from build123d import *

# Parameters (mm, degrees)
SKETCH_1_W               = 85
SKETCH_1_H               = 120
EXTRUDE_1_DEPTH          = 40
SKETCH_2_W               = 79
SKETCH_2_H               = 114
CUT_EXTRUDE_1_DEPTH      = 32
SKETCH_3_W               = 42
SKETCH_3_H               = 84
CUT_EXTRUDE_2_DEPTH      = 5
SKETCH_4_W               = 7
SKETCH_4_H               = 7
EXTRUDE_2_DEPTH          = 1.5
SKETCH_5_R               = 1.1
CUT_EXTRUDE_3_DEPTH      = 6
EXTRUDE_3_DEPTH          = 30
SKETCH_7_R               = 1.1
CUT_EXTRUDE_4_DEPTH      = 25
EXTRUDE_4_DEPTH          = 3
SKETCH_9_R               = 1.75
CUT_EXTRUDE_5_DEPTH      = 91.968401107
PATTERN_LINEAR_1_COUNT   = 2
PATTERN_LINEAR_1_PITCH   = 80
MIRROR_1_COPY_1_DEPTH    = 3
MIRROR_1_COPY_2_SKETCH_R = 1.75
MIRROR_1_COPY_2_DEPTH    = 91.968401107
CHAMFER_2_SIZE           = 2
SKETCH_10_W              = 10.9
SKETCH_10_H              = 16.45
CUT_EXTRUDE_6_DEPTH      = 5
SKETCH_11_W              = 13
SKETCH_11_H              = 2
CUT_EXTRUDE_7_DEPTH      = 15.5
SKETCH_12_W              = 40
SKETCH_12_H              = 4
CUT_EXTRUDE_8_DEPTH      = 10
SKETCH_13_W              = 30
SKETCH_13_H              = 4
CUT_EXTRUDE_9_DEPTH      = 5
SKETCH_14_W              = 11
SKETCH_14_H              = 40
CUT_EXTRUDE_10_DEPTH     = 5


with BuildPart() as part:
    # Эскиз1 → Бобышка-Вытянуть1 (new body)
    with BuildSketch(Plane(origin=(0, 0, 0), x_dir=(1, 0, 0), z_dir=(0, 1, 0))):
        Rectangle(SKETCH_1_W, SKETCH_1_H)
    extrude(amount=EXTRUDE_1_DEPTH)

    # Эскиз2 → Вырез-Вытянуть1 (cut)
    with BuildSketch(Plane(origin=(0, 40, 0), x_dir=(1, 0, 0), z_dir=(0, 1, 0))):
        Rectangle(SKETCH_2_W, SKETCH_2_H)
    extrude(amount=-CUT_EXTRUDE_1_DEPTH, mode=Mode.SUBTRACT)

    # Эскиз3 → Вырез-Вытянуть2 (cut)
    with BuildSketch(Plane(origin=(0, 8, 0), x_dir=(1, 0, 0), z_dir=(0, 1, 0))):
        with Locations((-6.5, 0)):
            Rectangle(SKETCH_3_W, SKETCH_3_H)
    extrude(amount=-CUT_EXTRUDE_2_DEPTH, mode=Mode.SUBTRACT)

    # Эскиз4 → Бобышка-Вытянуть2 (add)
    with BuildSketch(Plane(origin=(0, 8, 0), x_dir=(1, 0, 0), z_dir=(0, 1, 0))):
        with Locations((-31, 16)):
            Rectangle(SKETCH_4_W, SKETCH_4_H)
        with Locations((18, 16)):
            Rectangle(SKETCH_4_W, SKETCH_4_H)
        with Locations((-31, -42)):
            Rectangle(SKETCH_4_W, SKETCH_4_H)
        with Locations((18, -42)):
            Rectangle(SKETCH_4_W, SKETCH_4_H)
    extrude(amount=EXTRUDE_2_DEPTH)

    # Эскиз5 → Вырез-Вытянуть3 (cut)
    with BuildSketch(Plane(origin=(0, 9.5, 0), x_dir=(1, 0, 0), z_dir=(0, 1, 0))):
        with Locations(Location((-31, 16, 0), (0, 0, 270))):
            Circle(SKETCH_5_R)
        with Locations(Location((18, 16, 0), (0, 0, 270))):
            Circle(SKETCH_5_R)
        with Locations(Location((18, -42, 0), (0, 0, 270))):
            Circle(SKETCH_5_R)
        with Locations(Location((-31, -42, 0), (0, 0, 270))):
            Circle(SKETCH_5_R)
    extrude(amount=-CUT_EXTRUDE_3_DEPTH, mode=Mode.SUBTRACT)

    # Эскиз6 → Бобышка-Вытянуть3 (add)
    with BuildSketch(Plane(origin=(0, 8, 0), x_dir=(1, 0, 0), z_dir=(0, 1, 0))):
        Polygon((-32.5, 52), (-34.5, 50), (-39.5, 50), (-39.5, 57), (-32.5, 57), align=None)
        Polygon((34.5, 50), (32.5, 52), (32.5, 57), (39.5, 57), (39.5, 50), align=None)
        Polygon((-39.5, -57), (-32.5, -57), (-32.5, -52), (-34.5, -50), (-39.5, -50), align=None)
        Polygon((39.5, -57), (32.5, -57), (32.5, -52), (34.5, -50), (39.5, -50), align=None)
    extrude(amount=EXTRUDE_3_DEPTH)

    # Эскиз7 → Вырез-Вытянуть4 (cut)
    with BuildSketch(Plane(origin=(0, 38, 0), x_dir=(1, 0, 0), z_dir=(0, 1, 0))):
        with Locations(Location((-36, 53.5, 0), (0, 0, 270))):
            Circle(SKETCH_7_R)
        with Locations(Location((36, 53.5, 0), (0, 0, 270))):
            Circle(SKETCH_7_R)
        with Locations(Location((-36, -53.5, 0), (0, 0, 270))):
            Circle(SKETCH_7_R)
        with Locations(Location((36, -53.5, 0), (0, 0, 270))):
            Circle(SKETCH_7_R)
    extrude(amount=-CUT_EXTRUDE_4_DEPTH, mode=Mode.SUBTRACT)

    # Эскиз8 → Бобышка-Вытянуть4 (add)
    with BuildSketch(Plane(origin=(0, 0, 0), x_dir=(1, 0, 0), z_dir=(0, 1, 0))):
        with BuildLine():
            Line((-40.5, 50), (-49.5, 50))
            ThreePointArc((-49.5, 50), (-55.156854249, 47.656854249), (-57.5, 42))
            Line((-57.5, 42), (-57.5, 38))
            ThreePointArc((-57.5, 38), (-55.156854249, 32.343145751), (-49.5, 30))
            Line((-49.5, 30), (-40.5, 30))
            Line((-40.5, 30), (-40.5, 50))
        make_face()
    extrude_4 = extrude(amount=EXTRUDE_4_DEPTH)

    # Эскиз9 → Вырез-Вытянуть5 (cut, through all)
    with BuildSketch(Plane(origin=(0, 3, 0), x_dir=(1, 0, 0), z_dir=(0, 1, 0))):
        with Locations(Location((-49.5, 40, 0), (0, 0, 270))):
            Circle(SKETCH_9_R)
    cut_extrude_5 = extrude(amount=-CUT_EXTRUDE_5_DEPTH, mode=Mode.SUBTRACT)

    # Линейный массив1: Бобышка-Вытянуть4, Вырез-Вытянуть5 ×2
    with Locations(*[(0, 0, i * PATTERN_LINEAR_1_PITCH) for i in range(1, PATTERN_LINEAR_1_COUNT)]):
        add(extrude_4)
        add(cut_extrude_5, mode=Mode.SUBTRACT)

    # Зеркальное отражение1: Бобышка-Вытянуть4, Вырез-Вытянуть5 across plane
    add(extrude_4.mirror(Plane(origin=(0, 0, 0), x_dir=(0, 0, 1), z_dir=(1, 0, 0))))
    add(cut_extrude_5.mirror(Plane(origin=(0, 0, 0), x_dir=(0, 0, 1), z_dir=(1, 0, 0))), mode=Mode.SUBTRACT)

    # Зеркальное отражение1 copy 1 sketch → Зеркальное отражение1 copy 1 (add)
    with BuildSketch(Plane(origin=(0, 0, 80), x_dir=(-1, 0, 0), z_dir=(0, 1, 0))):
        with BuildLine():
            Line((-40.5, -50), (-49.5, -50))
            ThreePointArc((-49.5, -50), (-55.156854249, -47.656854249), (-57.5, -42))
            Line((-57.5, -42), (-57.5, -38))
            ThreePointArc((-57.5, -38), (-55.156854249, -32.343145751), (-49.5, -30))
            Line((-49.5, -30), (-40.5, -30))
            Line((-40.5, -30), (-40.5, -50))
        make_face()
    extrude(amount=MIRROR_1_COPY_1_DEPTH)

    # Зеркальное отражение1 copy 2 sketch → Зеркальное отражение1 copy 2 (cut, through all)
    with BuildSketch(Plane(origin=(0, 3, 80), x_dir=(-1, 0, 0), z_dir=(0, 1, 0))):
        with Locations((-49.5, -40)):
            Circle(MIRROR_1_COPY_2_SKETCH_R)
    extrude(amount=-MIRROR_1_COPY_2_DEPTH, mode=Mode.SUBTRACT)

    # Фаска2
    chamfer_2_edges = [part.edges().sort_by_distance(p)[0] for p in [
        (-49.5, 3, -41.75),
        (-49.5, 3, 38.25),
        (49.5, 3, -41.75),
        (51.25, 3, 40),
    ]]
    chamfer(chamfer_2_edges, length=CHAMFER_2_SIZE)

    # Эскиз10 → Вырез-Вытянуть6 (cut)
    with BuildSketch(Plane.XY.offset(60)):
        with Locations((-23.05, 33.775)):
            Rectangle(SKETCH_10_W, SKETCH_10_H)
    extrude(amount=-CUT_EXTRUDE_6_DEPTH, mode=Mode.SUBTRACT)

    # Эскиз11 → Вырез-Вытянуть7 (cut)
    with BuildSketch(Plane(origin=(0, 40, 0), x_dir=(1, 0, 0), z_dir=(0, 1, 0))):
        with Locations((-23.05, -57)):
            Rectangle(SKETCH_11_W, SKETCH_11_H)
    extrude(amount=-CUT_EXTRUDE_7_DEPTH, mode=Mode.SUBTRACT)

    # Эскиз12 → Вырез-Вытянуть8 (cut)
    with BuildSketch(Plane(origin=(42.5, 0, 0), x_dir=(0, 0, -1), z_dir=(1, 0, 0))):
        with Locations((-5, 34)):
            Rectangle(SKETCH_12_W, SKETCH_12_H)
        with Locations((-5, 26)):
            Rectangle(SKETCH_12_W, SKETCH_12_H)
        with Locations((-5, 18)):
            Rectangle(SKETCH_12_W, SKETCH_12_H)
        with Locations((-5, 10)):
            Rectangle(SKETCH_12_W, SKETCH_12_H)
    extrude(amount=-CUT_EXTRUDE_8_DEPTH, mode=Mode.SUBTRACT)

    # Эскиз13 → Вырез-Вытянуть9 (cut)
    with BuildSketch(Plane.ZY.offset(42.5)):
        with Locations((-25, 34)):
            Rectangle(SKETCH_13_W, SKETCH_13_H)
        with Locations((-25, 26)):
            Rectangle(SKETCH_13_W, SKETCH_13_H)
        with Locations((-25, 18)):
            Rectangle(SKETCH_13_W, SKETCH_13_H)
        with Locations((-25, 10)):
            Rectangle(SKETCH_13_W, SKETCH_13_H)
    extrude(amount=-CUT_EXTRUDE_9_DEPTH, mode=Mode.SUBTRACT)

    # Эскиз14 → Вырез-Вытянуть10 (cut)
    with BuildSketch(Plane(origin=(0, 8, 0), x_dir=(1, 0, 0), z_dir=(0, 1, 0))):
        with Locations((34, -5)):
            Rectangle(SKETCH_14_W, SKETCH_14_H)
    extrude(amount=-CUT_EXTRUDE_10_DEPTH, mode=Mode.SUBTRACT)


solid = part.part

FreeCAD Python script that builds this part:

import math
import FreeCAD as App
import Part
import Sketcher

V = App.Vector
Q = App.Units.Quantity


def edges_at(feature, points):
    """Names of the edges that pass closest to the given points."""
    edges = feature.Shape.Edges
    near = lambda p: min(range(len(edges)), key=lambda i: edges[i].distToShape(Part.Vertex(*p))[0])
    return sorted({f"Edge{near(p) + 1}" for p in points})


def add_polygon(sketch, points):
    """Adds a closed chain of lines whose ends are joined by coincident constraints."""
    first, n = sketch.GeometryCount, len(points)
    for a, b in zip(points, points[1:] + points[:1]):
        sketch.addGeometry(Part.LineSegment(App.Vector(*a, 0), App.Vector(*b, 0)), False)
    for i in range(n):
        sketch.addConstraint(Sketcher.Constraint("Coincident", first + i, 2, first + (i + 1) % n, 1))

doc = App.newDocument("Part")
params = doc.addObject("Spreadsheet::Sheet", "Params")
for row, (alias, value) in enumerate([
    ("sketch1_width", "85 mm"),
    ("sketch1_height", "120 mm"),
    ("pad1_length", "40 mm"),
    ("sketch2_width", "79 mm"),
    ("sketch2_height", "114 mm"),
    ("pocket1_length", "32 mm"),
    ("sketch3_width", "42 mm"),
    ("sketch3_height", "84 mm"),
    ("pocket2_length", "5 mm"),
    ("sketch4_width", "7 mm"),
    ("pad2_length", "1.5 mm"),
    ("sketch5_diameter", "2.2 mm"),
    ("pocket3_length", "6 mm"),
    ("sketch6_width", "7 mm"),
    ("sketch6_width2", "5 mm"),
    ("pad3_length", "30 mm"),
    ("sketch7_diameter", "2.2 mm"),
    ("pocket4_length", "25 mm"),
    ("sketch8_radius", "8 mm"),
    ("sketch8_width", "9 mm"),
    ("sketch8_height", "4 mm"),
    ("pad4_length", "3 mm"),
    ("sketch9_diameter", "3.5 mm"),
    ("linearpattern_pitch", "80 mm"),
    ("sketch10_radius", "8 mm"),
    ("sketch10_width", "9 mm"),
    ("sketch10_height", "20 mm"),
    ("pad5_length", "3 mm"),
    ("sketch11_diameter", "3.5 mm"),
    ("chamfer_size", "2 mm"),
    ("sketch12_width", "10.9 mm"),
    ("sketch12_height", "16.45 mm"),
    ("pocket7_length", "5 mm"),
    ("sketch13_width", "13 mm"),
    ("sketch13_height", "2 mm"),
    ("pocket8_length", "15.5 mm"),
    ("sketch14_width", "4 mm"),
    ("sketch14_height", "40 mm"),
    ("pocket9_length", "10 mm"),
    ("sketch15_width", "4 mm"),
    ("sketch15_height", "30 mm"),
    ("pocket10_length", "5 mm"),
    ("sketch16_width", "11 mm"),
    ("sketch16_height", "40 mm"),
    ("pocket11_length", "5 mm"),
], start=1):
    params.set(f"A{row}", alias)
    params.set(f"B{row}", "=" + value)
    params.setAlias(f"B{row}", alias)

body = doc.addObject("PartDesign::Body", "Body")

# Sketch on XZ plane
sketch1 = body.newObject("Sketcher::SketchObject", "Sketch")
sketch1.AttachmentSupport = (doc.getObject("XZ_Plane"), [""])
sketch1.MapMode = "FlatFace"
add_polygon(sketch1, [(-42, -60), (-42, 60), (42, 60), (42, -60)])  # lines 0-3
sketch1.addConstraint(Sketcher.Constraint("Vertical", 0))
sketch1.addConstraint(Sketcher.Constraint("Horizontal", 1))
sketch1.addConstraint(Sketcher.Constraint("Vertical", 2))
sketch1.addConstraint(Sketcher.Constraint("Horizontal", 3))
sketch1.addConstraint(Sketcher.Constraint("Symmetric", 0, 2, 2, 2, -1, 1))
sketch1.addConstraint(Sketcher.Constraint("DistanceX", 1, 1, 1, 2, Q("85 mm")))
sketch1.addConstraint(Sketcher.Constraint("DistanceY", 0, 1, 0, 2, Q("120 mm")))
sketch1.setExpression("Constraints[9]", "Params.sketch1_width")
sketch1.setExpression("Constraints[10]", "Params.sketch1_height")
pad1 = body.newObject("PartDesign::Pad", "Pad")
pad1.Profile = sketch1
pad1.setExpression("Length", "Params.pad1_length")
pad1.Reversed = True

# Sketch on XZ plane
sketch2 = body.newObject("Sketcher::SketchObject", "Sketch001")
sketch2.AttachmentSupport = (doc.getObject("XZ_Plane"), [""])
sketch2.MapMode = "FlatFace"
sketch2.AttachmentOffset = App.Placement(V(0, 0, -40), App.Rotation())
add_polygon(sketch2, [(-40, -57), (-40, 57), (40, 57), (40, -57)])  # lines 0-3
sketch2.addConstraint(Sketcher.Constraint("Vertical", 0))
sketch2.addConstraint(Sketcher.Constraint("Horizontal", 1))
sketch2.addConstraint(Sketcher.Constraint("Vertical", 2))
sketch2.addConstraint(Sketcher.Constraint("Horizontal", 3))
sketch2.addConstraint(Sketcher.Constraint("Symmetric", 0, 2, 2, 2, -1, 1))
sketch2.addConstraint(Sketcher.Constraint("DistanceX", 1, 1, 1, 2, Q("79 mm")))
sketch2.addConstraint(Sketcher.Constraint("DistanceY", 0, 1, 0, 2, Q("114 mm")))
sketch2.setExpression("Constraints[9]", "Params.sketch2_width")
sketch2.setExpression("Constraints[10]", "Params.sketch2_height")
pocket1 = body.newObject("PartDesign::Pocket", "Pocket")
pocket1.Profile = sketch2
pocket1.setExpression("Length", "Params.pocket1_length")
pocket1.Reversed = True

# Sketch on XZ plane
sketch3 = body.newObject("Sketcher::SketchObject", "Sketch002")
sketch3.AttachmentSupport = (doc.getObject("XZ_Plane"), [""])
sketch3.MapMode = "FlatFace"
sketch3.AttachmentOffset = App.Placement(V(0, 0, -8), App.Rotation())
add_polygon(sketch3, [(-28, -42), (-28, 42), (14, 42), (14, -42)])  # lines 0-3
sketch3.addConstraint(Sketcher.Constraint("Vertical", 0))
sketch3.addConstraint(Sketcher.Constraint("Horizontal", 1))
sketch3.addConstraint(Sketcher.Constraint("Vertical", 2))
sketch3.addConstraint(Sketcher.Constraint("Horizontal", 3))
sketch3.addConstraint(Sketcher.Constraint("DistanceX", 1, 1, 1, 2, Q("42 mm")))
sketch3.addConstraint(Sketcher.Constraint("DistanceY", 0, 1, 0, 2, Q("84 mm")))
sketch3.addConstraint(Sketcher.Constraint("DistanceY", -1, 1, 0, 2, Q("42 mm")))
sketch3.addConstraint(Sketcher.Constraint("DistanceX", 0, 2, -1, 1, Q("27.5 mm")))
sketch3.setExpression("Constraints[8]", "Params.sketch3_width")
sketch3.setExpression("Constraints[9]", "Params.sketch3_height")
pocket2 = body.newObject("PartDesign::Pocket", "Pocket001")
pocket2.Profile = sketch3
pocket2.setExpression("Length", "Params.pocket2_length")
pocket2.Reversed = True

# Sketch on XZ plane
sketch4 = body.newObject("Sketcher::SketchObject", "Sketch003")
sketch4.AttachmentSupport = (doc.getObject("XZ_Plane"), [""])
sketch4.MapMode = "FlatFace"
sketch4.AttachmentOffset = App.Placement(V(0, 0, -8), App.Rotation())
add_polygon(sketch4, [(-34, -20), (-34, -12), (-28, -12), (-28, -20)])  # lines 0-3
add_polygon(sketch4, [(14, -20), (14, -12), (22, -12), (22, -20)])  # lines 4-7
add_polygon(sketch4, [(-34, 38), (-34, 46), (-28, 46), (-28, 38)])  # lines 8-11
add_polygon(sketch4, [(14, 38), (14, 46), (22, 46), (22, 38)])  # lines 12-15
sketch4.addConstraint(Sketcher.Constraint("Vertical", 0))
sketch4.addConstraint(Sketcher.Constraint("Horizontal", 1))
sketch4.addConstraint(Sketcher.Constraint("Vertical", 2))
sketch4.addConstraint(Sketcher.Constraint("Horizontal", 3))
sketch4.addConstraint(Sketcher.Constraint("Vertical", 4))
sketch4.addConstraint(Sketcher.Constraint("Horizontal", 5))
sketch4.addConstraint(Sketcher.Constraint("Vertical", 6))
sketch4.addConstraint(Sketcher.Constraint("Horizontal", 7))
sketch4.addConstraint(Sketcher.Constraint("Vertical", 8))
sketch4.addConstraint(Sketcher.Constraint("Horizontal", 9))
sketch4.addConstraint(Sketcher.Constraint("Vertical", 10))
sketch4.addConstraint(Sketcher.Constraint("Horizontal", 11))
sketch4.addConstraint(Sketcher.Constraint("Vertical", 12))
sketch4.addConstraint(Sketcher.Constraint("Horizontal", 13))
sketch4.addConstraint(Sketcher.Constraint("Vertical", 14))
sketch4.addConstraint(Sketcher.Constraint("Horizontal", 15))
sketch4.addConstraint(Sketcher.Constraint("Horizontal", 1, 2, 4, 2))
sketch4.addConstraint(Sketcher.Constraint("Horizontal", 3, 2, 6, 2))
sketch4.addConstraint(Sketcher.Constraint("Horizontal", 9, 2, 12, 2))
sketch4.addConstraint(Sketcher.Constraint("Horizontal", 11, 2, 14, 2))
sketch4.addConstraint(Sketcher.Constraint("Vertical", 3, 2, 8, 2))
sketch4.addConstraint(Sketcher.Constraint("Vertical", 2, 2, 9, 2))
sketch4.addConstraint(Sketcher.Constraint("Vertical", 7, 2, 12, 2))
sketch4.addConstraint(Sketcher.Constraint("Vertical", 6, 2, 13, 2))
sketch4.addConstraint(Sketcher.Constraint("Equal", 3, 5))
sketch4.addConstraint(Sketcher.Constraint("Equal", 15, 0))
sketch4.addConstraint(Sketcher.Constraint("Equal", 6, 8))
sketch4.addConstraint(Sketcher.Constraint("DistanceX", 1, 1, 1, 2, Q("7 mm")))
sketch4.addConstraint(Sketcher.Constraint("DistanceX", 1, 2, 4, 2, Q("42 mm")))
sketch4.addConstraint(Sketcher.Constraint("DistanceY", 0, 2, 8, 2, Q("58 mm")))
sketch4.addConstraint(Sketcher.Constraint("DistanceX", 0, 2, -1, 1, Q("34.5 mm")))
sketch4.addConstraint(Sketcher.Constraint("DistanceY", 0, 2, -1, 1, Q("12.5 mm")))
sketch4.setExpression("Constraints[43]", "Params.sketch4_width")
pad2 = body.newObject("PartDesign::Pad", "Pad001")
pad2.Profile = sketch4
pad2.setExpression("Length", "Params.pad2_length")
pad2.Reversed = True

# Sketch on XZ plane
sketch5 = body.newObject("Sketcher::SketchObject", "Sketch004")
sketch5.AttachmentSupport = (doc.getObject("XZ_Plane"), [""])
sketch5.MapMode = "FlatFace"
sketch5.AttachmentOffset = App.Placement(V(0, 0, -9.5), App.Rotation())
sketch5.addGeometry(Part.Circle(V(-31, -16, 0), V(0, 0, 1), 1.1), False)
sketch5.addGeometry(Part.Circle(V(18, -16, 0), V(0, 0, 1), 1.1), False)
sketch5.addGeometry(Part.Circle(V(18, 42, 0), V(0, 0, 1), 1.1), False)
sketch5.addGeometry(Part.Circle(V(-31, 42, 0), V(0, 0, 1), 1.1), False)
sketch5.addConstraint(Sketcher.Constraint("Equal", 0, 1))
sketch5.addConstraint(Sketcher.Constraint("Equal", 1, 2))
sketch5.addConstraint(Sketcher.Constraint("Equal", 2, 3))
sketch5.addConstraint(Sketcher.Constraint("Horizontal", 0, 3, 1, 3))
sketch5.addConstraint(Sketcher.Constraint("Horizontal", 2, 3, 3, 3))
sketch5.addConstraint(Sketcher.Constraint("Vertical", 1, 3, 2, 3))
sketch5.addConstraint(Sketcher.Constraint("Vertical", 0, 3, 3, 3))
sketch5.addConstraint(Sketcher.Constraint("Diameter", 0, Q("2.2 mm")))
sketch5.addConstraint(Sketcher.Constraint("DistanceX", 0, 3, -1, 1, Q("31 mm")))
sketch5.addConstraint(Sketcher.Constraint("DistanceY", 0, 3, -1, 1, Q("16 mm")))
sketch5.addConstraint(Sketcher.Constraint("DistanceX", -1, 1, 1, 3, Q("18 mm")))
sketch5.addConstraint(Sketcher.Constraint("DistanceY", -1, 1, 2, 3, Q("42 mm")))
sketch5.setExpression("Constraints[7]", "Params.sketch5_diameter")
pocket3 = body.newObject("PartDesign::Pocket", "Pocket002")
pocket3.Profile = sketch5
pocket3.setExpression("Length", "Params.pocket3_length")
pocket3.Reversed = True

# Sketch on XZ plane
sketch6 = body.newObject("Sketcher::SketchObject", "Sketch005")
sketch6.AttachmentSupport = (doc.getObject("XZ_Plane"), [""])
sketch6.MapMode = "FlatFace"
sketch6.AttachmentOffset = App.Placement(V(0, 0, -8), App.Rotation())
add_polygon(sketch6, [(-34.5, -50), (-32.5, -52), (-32.5, -57), (-39.5, -57), (-39.5, -50)])  # lines 0-4
add_polygon(sketch6, [(32.5, -52), (34.5, -50), (39.5, -50), (39.5, -57), (32.5, -57)])  # lines 5-9
add_polygon(sketch6, [(-39.5, 57), (-32.5, 57), (-32.5, 52), (-34.5, 50), (-39.5, 50)])  # lines 10-14
add_polygon(sketch6, [(32.5, 57), (39.5, 57), (39.5, 50), (34.5, 50), (32.5, 52)])  # lines 15-19
sketch6.addConstraint(Sketcher.Constraint("Vertical", 1))
sketch6.addConstraint(Sketcher.Constraint("Horizontal", 2))
sketch6.addConstraint(Sketcher.Constraint("Vertical", 3))
sketch6.addConstraint(Sketcher.Constraint("Horizontal", 4))
sketch6.addConstraint(Sketcher.Constraint("Horizontal", 6))
sketch6.addConstraint(Sketcher.Constraint("Vertical", 7))
sketch6.addConstraint(Sketcher.Constraint("Horizontal", 8))
sketch6.addConstraint(Sketcher.Constraint("Vertical", 9))
sketch6.addConstraint(Sketcher.Constraint("Horizontal", 10))
sketch6.addConstraint(Sketcher.Constraint("Vertical", 11))
sketch6.addConstraint(Sketcher.Constraint("Horizontal", 13))
sketch6.addConstraint(Sketcher.Constraint("Vertical", 14))
sketch6.addConstraint(Sketcher.Constraint("Horizontal", 15))
sketch6.addConstraint(Sketcher.Constraint("Vertical", 16))
sketch6.addConstraint(Sketcher.Constraint("Horizontal", 17))
sketch6.addConstraint(Sketcher.Constraint("Vertical", 19))
sketch6.addConstraint(Sketcher.Constraint("Symmetric", 8, 2, 10, 2, -1, 1))
sketch6.addConstraint(Sketcher.Constraint("Symmetric", 5, 2, 12, 2, -1, 1))
sketch6.addConstraint(Sketcher.Constraint("Symmetric", 2, 2, 15, 2, -1, 1))
sketch6.addConstraint(Sketcher.Constraint("Symmetric", 4, 2, 17, 2, -1, 1))
sketch6.addConstraint(Sketcher.Constraint("Symmetric", 0, 2, 18, 2, -1, 1))
sketch6.addConstraint(Sketcher.Constraint("Symmetric", 4, 2, 5, 2, -2))
sketch6.addConstraint(Sketcher.Constraint("Symmetric", 2, 2, 7, 2, -2))
sketch6.addConstraint(Sketcher.Constraint("Symmetric", 0, 2, 9, 2, -2))
sketch6.addConstraint(Sketcher.Constraint("Perpendicular", 0, 5))
sketch6.addConstraint(Sketcher.Constraint("Parallel", 5, 12))
sketch6.addConstraint(Sketcher.Constraint("Vertical", 3, 2, 13, 2))
sketch6.addConstraint(Sketcher.Constraint("Equal", 17, 1))
sketch6.addConstraint(Sketcher.Constraint("DistanceX", 2, 2, 2, 1, Q("7 mm")))
sketch6.addConstraint(Sketcher.Constraint("DistanceX", 4, 1, 4, 2, Q("5 mm")))
sketch6.addConstraint(Sketcher.Constraint("DistanceY", 0, 2, -1, 1, Q("52 mm")))
sketch6.addConstraint(Sketcher.Constraint("DistanceX", 0, 2, 5, 2, Q("67 mm")))
sketch6.setExpression("Constraints[48]", "Params.sketch6_width")
sketch6.setExpression("Constraints[49]", "Params.sketch6_width2")
pad3 = body.newObject("PartDesign::Pad", "Pad002")
pad3.Profile = sketch6
pad3.setExpression("Length", "Params.pad3_length")
pad3.Reversed = True

# Sketch on XZ plane
sketch7 = body.newObject("Sketcher::SketchObject", "Sketch006")
sketch7.AttachmentSupport = (doc.getObject("XZ_Plane"), [""])
sketch7.MapMode = "FlatFace"
sketch7.AttachmentOffset = App.Placement(V(0, 0, -38), App.Rotation())
sketch7.addGeometry(Part.Circle(V(-36, -53.5, 0), V(0, 0, 1), 1.1), False)
sketch7.addGeometry(Part.Circle(V(36, -53.5, 0), V(0, 0, 1), 1.1), False)
sketch7.addGeometry(Part.Circle(V(-36, 53.5, 0), V(0, 0, 1), 1.1), False)
sketch7.addGeometry(Part.Circle(V(36, 53.5, 0), V(0, 0, 1), 1.1), False)
sketch7.addConstraint(Sketcher.Constraint("Equal", 0, 1))
sketch7.addConstraint(Sketcher.Constraint("Equal", 1, 2))
sketch7.addConstraint(Sketcher.Constraint("Equal", 2, 3))
sketch7.addConstraint(Sketcher.Constraint("Symmetric", 1, 3, 2, 3, -1, 1))
sketch7.addConstraint(Sketcher.Constraint("Symmetric", 0, 3, 3, 3, -1, 1))
sketch7.addConstraint(Sketcher.Constraint("Symmetric", 0, 3, 1, 3, -2))
sketch7.addConstraint(Sketcher.Constraint("Diameter", 0, Q("2.2 mm")))
sketch7.addConstraint(Sketcher.Constraint("DistanceX", 0, 3, -1, 1, Q("36 mm")))
sketch7.addConstraint(Sketcher.Constraint("DistanceY", 0, 3, 2, 3, Q("107 mm")))
sketch7.setExpression("Constraints[6]", "Params.sketch7_diameter")
pocket4 = body.newObject("PartDesign::Pocket", "Pocket003")
pocket4.Profile = sketch7
pocket4.setExpression("Length", "Params.pocket4_length")
pocket4.Reversed = True

# Sketch on XZ plane
sketch8 = body.newObject("Sketcher::SketchObject", "Sketch007")
sketch8.AttachmentSupport = (doc.getObject("XZ_Plane"), [""])
sketch8.MapMode = "FlatFace"
sketch8.addGeometry(Part.LineSegment(V(-40.5, -50, 0), V(-49.5, -50, 0)), False)
sketch8.addGeometry(Part.ArcOfCircle(Part.Circle(V(-49.5, -42, 0), V(0, 0, 1), 8), math.radians(-180), math.radians(-90)), False)
sketch8.addGeometry(Part.LineSegment(V(-57.5, -42, 0), V(-57.5, -38, 0)), False)
sketch8.addGeometry(Part.ArcOfCircle(Part.Circle(V(-49.5, -38, 0), V(0, 0, 1), 8), math.radians(90), math.radians(180)), False)
sketch8.addGeometry(Part.LineSegment(V(-49.5, -30, 0), V(-40.5, -30, 0)), False)
sketch8.addGeometry(Part.LineSegment(V(-40.5, -30, 0), V(-40.5, -50, 0)), False)
sketch8.addConstraint(Sketcher.Constraint("Tangent", 0, 2, 1, 2))
sketch8.addConstraint(Sketcher.Constraint("Tangent", 1, 1, 2, 1))
sketch8.addConstraint(Sketcher.Constraint("Tangent", 2, 2, 3, 2))
sketch8.addConstraint(Sketcher.Constraint("Tangent", 3, 1, 4, 1))
sketch8.addConstraint(Sketcher.Constraint("Coincident", 4, 2, 5, 1))
sketch8.addConstraint(Sketcher.Constraint("Coincident", 5, 2, 0, 1))
sketch8.addConstraint(Sketcher.Constraint("Horizontal", 0))
sketch8.addConstraint(Sketcher.Constraint("Vertical", 2))
sketch8.addConstraint(Sketcher.Constraint("Horizontal", 4))
sketch8.addConstraint(Sketcher.Constraint("Vertical", 5))
sketch8.addConstraint(Sketcher.Constraint("Equal", 1, 3))
sketch8.addConstraint(Sketcher.Constraint("Radius", 1, Q("8 mm")))
sketch8.addConstraint(Sketcher.Constraint("DistanceX", 0, 2, 0, 1, Q("9 mm")))
sketch8.addConstraint(Sketcher.Constraint("DistanceY", 2, 1, 2, 2, Q("4 mm")))
sketch8.addConstraint(Sketcher.Constraint("DistanceY", 1, 3, -1, 1, Q("42 mm")))
sketch8.addConstraint(Sketcher.Constraint("DistanceX", 1, 3, -1, 1, Q("49.5 mm")))
sketch8.setExpression("Constraints[11]", "Params.sketch8_radius")
sketch8.setExpression("Constraints[12]", "Params.sketch8_width")
sketch8.setExpression("Constraints[13]", "Params.sketch8_height")
pad4 = body.newObject("PartDesign::Pad", "Pad003")
pad4.Profile = sketch8
pad4.setExpression("Length", "Params.pad4_length")
pad4.Reversed = True

# Sketch on XZ plane
sketch9 = body.newObject("Sketcher::SketchObject", "Sketch008")
sketch9.AttachmentSupport = (doc.getObject("XZ_Plane"), [""])
sketch9.MapMode = "FlatFace"
sketch9.AttachmentOffset = App.Placement(V(0, 0, -3), App.Rotation())
sketch9.addGeometry(Part.Circle(V(-49.5, -40, 0), V(0, 0, 1), 1.8), False)
sketch9.addConstraint(Sketcher.Constraint("Diameter", 0, Q("3.5 mm")))
sketch9.addConstraint(Sketcher.Constraint("DistanceY", 0, 3, -1, 1, Q("40 mm")))
sketch9.addConstraint(Sketcher.Constraint("DistanceX", 0, 3, -1, 1, Q("49.5 mm")))
sketch9.setExpression("Constraints[0]", "Params.sketch9_diameter")
pocket5 = body.newObject("PartDesign::Pocket", "Pocket004")
pocket5.Profile = sketch9
pocket5.Type = "ThroughAll"
pocket5.Reversed = True
doc.recompute()

linearpattern = body.newObject("PartDesign::LinearPattern", "LinearPattern")
linearpattern.Originals = [pad4, pocket5]
linearpattern.Direction = (doc.getObject("Z_Axis"), [""])
linearpattern.Mode = "offset"
linearpattern.setExpression("Offset", "Params.linearpattern_pitch")
linearpattern.Occurrences = 2
body.Tip = linearpattern
doc.recompute()

mirrored = body.newObject("PartDesign::Mirrored", "Mirrored")
mirrored.Originals = [pad4, pocket5]
mirrored.MirrorPlane = (doc.getObject("YZ_Plane"), [""])
body.Tip = mirrored

# Sketch on XZ plane
sketch10 = body.newObject("Sketcher::SketchObject", "Sketch009")
sketch10.AttachmentSupport = (doc.getObject("XZ_Plane"), [""])
sketch10.MapMode = "FlatFace"
sketch10.addGeometry(Part.LineSegment(V(49.5, 30, 0), V(40.5, 30, 0)), False)
sketch10.addGeometry(Part.LineSegment(V(40.5, 30, 0), V(40.5, 50, 0)), False)
sketch10.addGeometry(Part.LineSegment(V(40.5, 50, 0), V(49.5, 50, 0)), False)
sketch10.addGeometry(Part.ArcOfCircle(Part.Circle(V(49.5, 42, 0), V(0, 0, 1), 8), math.radians(0), math.radians(90)), False)
sketch10.addGeometry(Part.LineSegment(V(57.5, 42, 0), V(57.5, 38, 0)), False)
sketch10.addGeometry(Part.ArcOfCircle(Part.Circle(V(49.5, 38, 0), V(0, 0, 1), 8), math.radians(-90), math.radians(0)), False)
sketch10.addConstraint(Sketcher.Constraint("Coincident", 0, 2, 1, 1))
sketch10.addConstraint(Sketcher.Constraint("Coincident", 1, 2, 2, 1))
sketch10.addConstraint(Sketcher.Constraint("Tangent", 2, 2, 3, 2))
sketch10.addConstraint(Sketcher.Constraint("Tangent", 3, 1, 4, 1))
sketch10.addConstraint(Sketcher.Constraint("Tangent", 4, 2, 5, 2))
sketch10.addConstraint(Sketcher.Constraint("Tangent", 5, 1, 0, 1))
sketch10.addConstraint(Sketcher.Constraint("Horizontal", 0))
sketch10.addConstraint(Sketcher.Constraint("Vertical", 1))
sketch10.addConstraint(Sketcher.Constraint("Horizontal", 2))
sketch10.addConstraint(Sketcher.Constraint("Vertical", 4))
sketch10.addConstraint(Sketcher.Constraint("Equal", 3, 5))
sketch10.addConstraint(Sketcher.Constraint("Radius", 3, Q("8 mm")))
sketch10.addConstraint(Sketcher.Constraint("DistanceX", 0, 2, 0, 1, Q("9 mm")))
sketch10.addConstraint(Sketcher.Constraint("DistanceY", 1, 1, 1, 2, Q("20 mm")))
sketch10.addConstraint(Sketcher.Constraint("DistanceY", -1, 1, 3, 3, Q("42 mm")))
sketch10.addConstraint(Sketcher.Constraint("DistanceX", -1, 1, 3, 3, Q("49.5 mm")))
sketch10.setExpression("Constraints[11]", "Params.sketch10_radius")
sketch10.setExpression("Constraints[12]", "Params.sketch10_width")
sketch10.setExpression("Constraints[13]", "Params.sketch10_height")
pad5 = body.newObject("PartDesign::Pad", "Pad004")
pad5.Profile = sketch10
pad5.setExpression("Length", "Params.pad5_length")
pad5.Reversed = True

# Sketch on XZ plane
sketch11 = body.newObject("Sketcher::SketchObject", "Sketch010")
sketch11.AttachmentSupport = (doc.getObject("XZ_Plane"), [""])
sketch11.MapMode = "FlatFace"
sketch11.AttachmentOffset = App.Placement(V(0, 0, -3), App.Rotation())
sketch11.addGeometry(Part.Circle(V(49.5, 40, 0), V(0, 0, 1), 1.8), False)
sketch11.addConstraint(Sketcher.Constraint("Diameter", 0, Q("3.5 mm")))
sketch11.addConstraint(Sketcher.Constraint("DistanceY", -1, 1, 0, 3, Q("40 mm")))
sketch11.addConstraint(Sketcher.Constraint("DistanceX", -1, 1, 0, 3, Q("49.5 mm")))
sketch11.setExpression("Constraints[0]", "Params.sketch11_diameter")
pocket6 = body.newObject("PartDesign::Pocket", "Pocket005")
pocket6.Profile = sketch11
pocket6.Type = "ThroughAll"
pocket6.Reversed = True
doc.recompute()

chamfer = body.newObject("PartDesign::Chamfer", "Chamfer")
chamfer.Base = (pocket6, edges_at(pocket6, [
    (-49.5, 3, -41.75),
    (-49.5, 3, 38.25),
    (49.5, 3, -41.75),
    (51.25, 3, 40),
]))
chamfer.setExpression("Size", "Params.chamfer_size")

# Sketch on XY plane
sketch12 = body.newObject("Sketcher::SketchObject", "Sketch011")
sketch12.AttachmentSupport = (doc.getObject("XY_Plane"), [""])
sketch12.MapMode = "FlatFace"
sketch12.AttachmentOffset = App.Placement(V(0, 0, 60), App.Rotation())
add_polygon(sketch12, [(-28, 42), (-28, 26), (-18, 26), (-18, 42)])  # lines 0-3
sketch12.addConstraint(Sketcher.Constraint("Vertical", 0))
sketch12.addConstraint(Sketcher.Constraint("Horizontal", 1))
sketch12.addConstraint(Sketcher.Constraint("Vertical", 2))
sketch12.addConstraint(Sketcher.Constraint("Horizontal", 3))
sketch12.addConstraint(Sketcher.Constraint("DistanceX", 1, 1, 1, 2, Q("10.9 mm")))
sketch12.addConstraint(Sketcher.Constraint("DistanceY", -1, 1, 2, 2, Q("42 mm")))
sketch12.addConstraint(Sketcher.Constraint("DistanceY", 0, 2, 0, 1, Q("16.45 mm")))
sketch12.addConstraint(Sketcher.Constraint("DistanceX", 0, 2, -1, 1, Q("28.5 mm")))
sketch12.setExpression("Constraints[8]", "Params.sketch12_width")
sketch12.setExpression("Constraints[10]", "Params.sketch12_height")
pocket7 = body.newObject("PartDesign::Pocket", "Pocket006")
pocket7.Profile = sketch12
pocket7.setExpression("Length", "Params.pocket7_length")

# Sketch on XZ plane
sketch13 = body.newObject("Sketcher::SketchObject", "Sketch012")
sketch13.AttachmentSupport = (doc.getObject("XZ_Plane"), [""])
sketch13.MapMode = "FlatFace"
sketch13.AttachmentOffset = App.Placement(V(0, 0, -40), App.Rotation())
add_polygon(sketch13, [(-29.6, 56), (-29.6, 58), (-16.6, 58), (-16.6, 56)])  # lines 0-3
sketch13.addConstraint(Sketcher.Constraint("Vertical", 0))
sketch13.addConstraint(Sketcher.Constraint("Horizontal", 1))
sketch13.addConstraint(Sketcher.Constraint("Vertical", 2))
sketch13.addConstraint(Sketcher.Constraint("Horizontal", 3))
sketch13.addConstraint(Sketcher.Constraint("DistanceX", 1, 1, 1, 2, Q("13 mm")))
sketch13.addConstraint(Sketcher.Constraint("DistanceY", 0, 1, 0, 2, Q("2 mm")))
sketch13.addConstraint(Sketcher.Constraint("DistanceY", -1, 1, 0, 2, Q("58 mm")))
sketch13.addConstraint(Sketcher.Constraint("DistanceX", 0, 2, -1, 1, Q("29.55 mm")))
sketch13.setExpression("Constraints[8]", "Params.sketch13_width")
sketch13.setExpression("Constraints[9]", "Params.sketch13_height")
pocket8 = body.newObject("PartDesign::Pocket", "Pocket007")
pocket8.Profile = sketch13
pocket8.setExpression("Length", "Params.pocket8_length")
pocket8.Reversed = True

# Sketch on YZ plane
sketch14 = body.newObject("Sketcher::SketchObject", "Sketch013")
sketch14.AttachmentSupport = (doc.getObject("YZ_Plane"), [""])
sketch14.MapMode = "FlatFace"
sketch14.AttachmentOffset = App.Placement(V(0, 0, 42.5), App.Rotation())
add_polygon(sketch14, [(36, 25), (32, 25), (32, -15), (36, -15)])  # lines 0-3
add_polygon(sketch14, [(28, 25), (24, 25), (24, -15), (28, -15)])  # lines 4-7
add_polygon(sketch14, [(20, 25), (16, 25), (16, -15), (20, -15)])  # lines 8-11
add_polygon(sketch14, [(12, 25), (8, 25), (8, -15), (12, -15)])  # lines 12-15
sketch14.addConstraint(Sketcher.Constraint("Horizontal", 0))
sketch14.addConstraint(Sketcher.Constraint("Vertical", 1))
sketch14.addConstraint(Sketcher.Constraint("Horizontal", 2))
sketch14.addConstraint(Sketcher.Constraint("Vertical", 3))
sketch14.addConstraint(Sketcher.Constraint("Horizontal", 4))
sketch14.addConstraint(Sketcher.Constraint("Vertical", 5))
sketch14.addConstraint(Sketcher.Constraint("Horizontal", 6))
sketch14.addConstraint(Sketcher.Constraint("Vertical", 7))
sketch14.addConstraint(Sketcher.Constraint("Horizontal", 8))
sketch14.addConstraint(Sketcher.Constraint("Vertical", 9))
sketch14.addConstraint(Sketcher.Constraint("Horizontal", 10))
sketch14.addConstraint(Sketcher.Constraint("Vertical", 11))
sketch14.addConstraint(Sketcher.Constraint("Horizontal", 12))
sketch14.addConstraint(Sketcher.Constraint("Vertical", 13))
sketch14.addConstraint(Sketcher.Constraint("Horizontal", 14))
sketch14.addConstraint(Sketcher.Constraint("Vertical", 15))
sketch14.addConstraint(Sketcher.Constraint("Horizontal", 3, 2, 4, 2))
sketch14.addConstraint(Sketcher.Constraint("Horizontal", 2, 2, 5, 2))
sketch14.addConstraint(Sketcher.Constraint("Horizontal", 7, 2, 8, 2))
sketch14.addConstraint(Sketcher.Constraint("Horizontal", 6, 2, 9, 2))
sketch14.addConstraint(Sketcher.Constraint("Horizontal", 11, 2, 12, 2))
sketch14.addConstraint(Sketcher.Constraint("Horizontal", 10, 2, 13, 2))
sketch14.addConstraint(Sketcher.Constraint("Equal", 2, 4))
sketch14.addConstraint(Sketcher.Constraint("Equal", 6, 8))
sketch14.addConstraint(Sketcher.Constraint("Equal", 10, 12))
sketch14.addConstraint(Sketcher.Constraint("DistanceX", 0, 2, 0, 1, Q("4 mm")))
sketch14.addConstraint(Sketcher.Constraint("DistanceY", 1, 2, 1, 1, Q("40 mm")))
sketch14.addConstraint(Sketcher.Constraint("DistanceX", -1, 1, 0, 2, Q("32 mm")))
sketch14.addConstraint(Sketcher.Constraint("DistanceY", -1, 1, 0, 2, Q("25 mm")))
sketch14.addConstraint(Sketcher.Constraint("DistanceX", -1, 1, 4, 2, Q("24 mm")))
sketch14.addConstraint(Sketcher.Constraint("DistanceX", -1, 1, 8, 2, Q("16 mm")))
sketch14.addConstraint(Sketcher.Constraint("DistanceX", -1, 1, 12, 2, Q("8 mm")))
sketch14.setExpression("Constraints[41]", "Params.sketch14_width")
sketch14.setExpression("Constraints[42]", "Params.sketch14_height")
pocket9 = body.newObject("PartDesign::Pocket", "Pocket008")
pocket9.Profile = sketch14
pocket9.setExpression("Length", "Params.pocket9_length")

# Sketch on YZ plane
sketch15 = body.newObject("Sketcher::SketchObject", "Sketch014")
sketch15.AttachmentSupport = (doc.getObject("YZ_Plane"), [""])
sketch15.MapMode = "FlatFace"
sketch15.AttachmentOffset = App.Placement(V(0, 0, -42.5), App.Rotation())
add_polygon(sketch15, [(36, -40), (32, -40), (32, -10), (36, -10)])  # lines 0-3
add_polygon(sketch15, [(28, -40), (24, -40), (24, -10), (28, -10)])  # lines 4-7
add_polygon(sketch15, [(20, -40), (16, -40), (16, -10), (20, -10)])  # lines 8-11
add_polygon(sketch15, [(12, -40), (8, -40), (8, -10), (12, -10)])  # lines 12-15
sketch15.addConstraint(Sketcher.Constraint("Horizontal", 0))
sketch15.addConstraint(Sketcher.Constraint("Vertical", 1))
sketch15.addConstraint(Sketcher.Constraint("Horizontal", 2))
sketch15.addConstraint(Sketcher.Constraint("Vertical", 3))
sketch15.addConstraint(Sketcher.Constraint("Horizontal", 4))
sketch15.addConstraint(Sketcher.Constraint("Vertical", 5))
sketch15.addConstraint(Sketcher.Constraint("Horizontal", 6))
sketch15.addConstraint(Sketcher.Constraint("Vertical", 7))
sketch15.addConstraint(Sketcher.Constraint("Horizontal", 8))
sketch15.addConstraint(Sketcher.Constraint("Vertical", 9))
sketch15.addConstraint(Sketcher.Constraint("Horizontal", 10))
sketch15.addConstraint(Sketcher.Constraint("Vertical", 11))
sketch15.addConstraint(Sketcher.Constraint("Horizontal", 12))
sketch15.addConstraint(Sketcher.Constraint("Vertical", 13))
sketch15.addConstraint(Sketcher.Constraint("Horizontal", 14))
sketch15.addConstraint(Sketcher.Constraint("Vertical", 15))
sketch15.addConstraint(Sketcher.Constraint("Horizontal", 3, 2, 4, 2))
sketch15.addConstraint(Sketcher.Constraint("Horizontal", 2, 2, 5, 2))
sketch15.addConstraint(Sketcher.Constraint("Horizontal", 7, 2, 8, 2))
sketch15.addConstraint(Sketcher.Constraint("Horizontal", 6, 2, 9, 2))
sketch15.addConstraint(Sketcher.Constraint("Horizontal", 11, 2, 12, 2))
sketch15.addConstraint(Sketcher.Constraint("Horizontal", 10, 2, 13, 2))
sketch15.addConstraint(Sketcher.Constraint("Equal", 2, 4))
sketch15.addConstraint(Sketcher.Constraint("Equal", 6, 8))
sketch15.addConstraint(Sketcher.Constraint("Equal", 10, 12))
sketch15.addConstraint(Sketcher.Constraint("DistanceX", 0, 2, 0, 1, Q("4 mm")))
sketch15.addConstraint(Sketcher.Constraint("DistanceY", 1, 1, 1, 2, Q("30 mm")))
sketch15.addConstraint(Sketcher.Constraint("DistanceX", -1, 1, 0, 2, Q("32 mm")))
sketch15.addConstraint(Sketcher.Constraint("DistanceY", 0, 2, -1, 1, Q("40 mm")))
sketch15.addConstraint(Sketcher.Constraint("DistanceX", -1, 1, 4, 2, Q("24 mm")))
sketch15.addConstraint(Sketcher.Constraint("DistanceX", -1, 1, 8, 2, Q("16 mm")))
sketch15.addConstraint(Sketcher.Constraint("DistanceX", -1, 1, 12, 2, Q("8 mm")))
sketch15.setExpression("Constraints[41]", "Params.sketch15_width")
sketch15.setExpression("Constraints[42]", "Params.sketch15_height")
pocket10 = body.newObject("PartDesign::Pocket", "Pocket009")
pocket10.Profile = sketch15
pocket10.setExpression("Length", "Params.pocket10_length")
pocket10.Reversed = True

# Sketch on XZ plane
sketch16 = body.newObject("Sketcher::SketchObject", "Sketch015")
sketch16.AttachmentSupport = (doc.getObject("XZ_Plane"), [""])
sketch16.MapMode = "FlatFace"
sketch16.AttachmentOffset = App.Placement(V(0, 0, -8), App.Rotation())
add_polygon(sketch16, [(28, -15), (28, 25), (40, 25), (40, -15)])  # lines 0-3
sketch16.addConstraint(Sketcher.Constraint("Vertical", 0))
sketch16.addConstraint(Sketcher.Constraint("Horizontal", 1))
sketch16.addConstraint(Sketcher.Constraint("Vertical", 2))
sketch16.addConstraint(Sketcher.Constraint("Horizontal", 3))
sketch16.addConstraint(Sketcher.Constraint("DistanceX", 1, 1, 1, 2, Q("11 mm")))
sketch16.addConstraint(Sketcher.Constraint("DistanceY", 0, 1, 0, 2, Q("40 mm")))
sketch16.addConstraint(Sketcher.Constraint("DistanceY", -1, 1, 0, 2, Q("25 mm")))
sketch16.addConstraint(Sketcher.Constraint("DistanceX", -1, 1, 0, 2, Q("28.5 mm")))
sketch16.setExpression("Constraints[8]", "Params.sketch16_width")
sketch16.setExpression("Constraints[9]", "Params.sketch16_height")
pocket11 = body.newObject("PartDesign::Pocket", "Pocket010")
pocket11.Profile = sketch16
pocket11.setExpression("Length", "Params.pocket11_length")
pocket11.Reversed = True

doc.recompute()
